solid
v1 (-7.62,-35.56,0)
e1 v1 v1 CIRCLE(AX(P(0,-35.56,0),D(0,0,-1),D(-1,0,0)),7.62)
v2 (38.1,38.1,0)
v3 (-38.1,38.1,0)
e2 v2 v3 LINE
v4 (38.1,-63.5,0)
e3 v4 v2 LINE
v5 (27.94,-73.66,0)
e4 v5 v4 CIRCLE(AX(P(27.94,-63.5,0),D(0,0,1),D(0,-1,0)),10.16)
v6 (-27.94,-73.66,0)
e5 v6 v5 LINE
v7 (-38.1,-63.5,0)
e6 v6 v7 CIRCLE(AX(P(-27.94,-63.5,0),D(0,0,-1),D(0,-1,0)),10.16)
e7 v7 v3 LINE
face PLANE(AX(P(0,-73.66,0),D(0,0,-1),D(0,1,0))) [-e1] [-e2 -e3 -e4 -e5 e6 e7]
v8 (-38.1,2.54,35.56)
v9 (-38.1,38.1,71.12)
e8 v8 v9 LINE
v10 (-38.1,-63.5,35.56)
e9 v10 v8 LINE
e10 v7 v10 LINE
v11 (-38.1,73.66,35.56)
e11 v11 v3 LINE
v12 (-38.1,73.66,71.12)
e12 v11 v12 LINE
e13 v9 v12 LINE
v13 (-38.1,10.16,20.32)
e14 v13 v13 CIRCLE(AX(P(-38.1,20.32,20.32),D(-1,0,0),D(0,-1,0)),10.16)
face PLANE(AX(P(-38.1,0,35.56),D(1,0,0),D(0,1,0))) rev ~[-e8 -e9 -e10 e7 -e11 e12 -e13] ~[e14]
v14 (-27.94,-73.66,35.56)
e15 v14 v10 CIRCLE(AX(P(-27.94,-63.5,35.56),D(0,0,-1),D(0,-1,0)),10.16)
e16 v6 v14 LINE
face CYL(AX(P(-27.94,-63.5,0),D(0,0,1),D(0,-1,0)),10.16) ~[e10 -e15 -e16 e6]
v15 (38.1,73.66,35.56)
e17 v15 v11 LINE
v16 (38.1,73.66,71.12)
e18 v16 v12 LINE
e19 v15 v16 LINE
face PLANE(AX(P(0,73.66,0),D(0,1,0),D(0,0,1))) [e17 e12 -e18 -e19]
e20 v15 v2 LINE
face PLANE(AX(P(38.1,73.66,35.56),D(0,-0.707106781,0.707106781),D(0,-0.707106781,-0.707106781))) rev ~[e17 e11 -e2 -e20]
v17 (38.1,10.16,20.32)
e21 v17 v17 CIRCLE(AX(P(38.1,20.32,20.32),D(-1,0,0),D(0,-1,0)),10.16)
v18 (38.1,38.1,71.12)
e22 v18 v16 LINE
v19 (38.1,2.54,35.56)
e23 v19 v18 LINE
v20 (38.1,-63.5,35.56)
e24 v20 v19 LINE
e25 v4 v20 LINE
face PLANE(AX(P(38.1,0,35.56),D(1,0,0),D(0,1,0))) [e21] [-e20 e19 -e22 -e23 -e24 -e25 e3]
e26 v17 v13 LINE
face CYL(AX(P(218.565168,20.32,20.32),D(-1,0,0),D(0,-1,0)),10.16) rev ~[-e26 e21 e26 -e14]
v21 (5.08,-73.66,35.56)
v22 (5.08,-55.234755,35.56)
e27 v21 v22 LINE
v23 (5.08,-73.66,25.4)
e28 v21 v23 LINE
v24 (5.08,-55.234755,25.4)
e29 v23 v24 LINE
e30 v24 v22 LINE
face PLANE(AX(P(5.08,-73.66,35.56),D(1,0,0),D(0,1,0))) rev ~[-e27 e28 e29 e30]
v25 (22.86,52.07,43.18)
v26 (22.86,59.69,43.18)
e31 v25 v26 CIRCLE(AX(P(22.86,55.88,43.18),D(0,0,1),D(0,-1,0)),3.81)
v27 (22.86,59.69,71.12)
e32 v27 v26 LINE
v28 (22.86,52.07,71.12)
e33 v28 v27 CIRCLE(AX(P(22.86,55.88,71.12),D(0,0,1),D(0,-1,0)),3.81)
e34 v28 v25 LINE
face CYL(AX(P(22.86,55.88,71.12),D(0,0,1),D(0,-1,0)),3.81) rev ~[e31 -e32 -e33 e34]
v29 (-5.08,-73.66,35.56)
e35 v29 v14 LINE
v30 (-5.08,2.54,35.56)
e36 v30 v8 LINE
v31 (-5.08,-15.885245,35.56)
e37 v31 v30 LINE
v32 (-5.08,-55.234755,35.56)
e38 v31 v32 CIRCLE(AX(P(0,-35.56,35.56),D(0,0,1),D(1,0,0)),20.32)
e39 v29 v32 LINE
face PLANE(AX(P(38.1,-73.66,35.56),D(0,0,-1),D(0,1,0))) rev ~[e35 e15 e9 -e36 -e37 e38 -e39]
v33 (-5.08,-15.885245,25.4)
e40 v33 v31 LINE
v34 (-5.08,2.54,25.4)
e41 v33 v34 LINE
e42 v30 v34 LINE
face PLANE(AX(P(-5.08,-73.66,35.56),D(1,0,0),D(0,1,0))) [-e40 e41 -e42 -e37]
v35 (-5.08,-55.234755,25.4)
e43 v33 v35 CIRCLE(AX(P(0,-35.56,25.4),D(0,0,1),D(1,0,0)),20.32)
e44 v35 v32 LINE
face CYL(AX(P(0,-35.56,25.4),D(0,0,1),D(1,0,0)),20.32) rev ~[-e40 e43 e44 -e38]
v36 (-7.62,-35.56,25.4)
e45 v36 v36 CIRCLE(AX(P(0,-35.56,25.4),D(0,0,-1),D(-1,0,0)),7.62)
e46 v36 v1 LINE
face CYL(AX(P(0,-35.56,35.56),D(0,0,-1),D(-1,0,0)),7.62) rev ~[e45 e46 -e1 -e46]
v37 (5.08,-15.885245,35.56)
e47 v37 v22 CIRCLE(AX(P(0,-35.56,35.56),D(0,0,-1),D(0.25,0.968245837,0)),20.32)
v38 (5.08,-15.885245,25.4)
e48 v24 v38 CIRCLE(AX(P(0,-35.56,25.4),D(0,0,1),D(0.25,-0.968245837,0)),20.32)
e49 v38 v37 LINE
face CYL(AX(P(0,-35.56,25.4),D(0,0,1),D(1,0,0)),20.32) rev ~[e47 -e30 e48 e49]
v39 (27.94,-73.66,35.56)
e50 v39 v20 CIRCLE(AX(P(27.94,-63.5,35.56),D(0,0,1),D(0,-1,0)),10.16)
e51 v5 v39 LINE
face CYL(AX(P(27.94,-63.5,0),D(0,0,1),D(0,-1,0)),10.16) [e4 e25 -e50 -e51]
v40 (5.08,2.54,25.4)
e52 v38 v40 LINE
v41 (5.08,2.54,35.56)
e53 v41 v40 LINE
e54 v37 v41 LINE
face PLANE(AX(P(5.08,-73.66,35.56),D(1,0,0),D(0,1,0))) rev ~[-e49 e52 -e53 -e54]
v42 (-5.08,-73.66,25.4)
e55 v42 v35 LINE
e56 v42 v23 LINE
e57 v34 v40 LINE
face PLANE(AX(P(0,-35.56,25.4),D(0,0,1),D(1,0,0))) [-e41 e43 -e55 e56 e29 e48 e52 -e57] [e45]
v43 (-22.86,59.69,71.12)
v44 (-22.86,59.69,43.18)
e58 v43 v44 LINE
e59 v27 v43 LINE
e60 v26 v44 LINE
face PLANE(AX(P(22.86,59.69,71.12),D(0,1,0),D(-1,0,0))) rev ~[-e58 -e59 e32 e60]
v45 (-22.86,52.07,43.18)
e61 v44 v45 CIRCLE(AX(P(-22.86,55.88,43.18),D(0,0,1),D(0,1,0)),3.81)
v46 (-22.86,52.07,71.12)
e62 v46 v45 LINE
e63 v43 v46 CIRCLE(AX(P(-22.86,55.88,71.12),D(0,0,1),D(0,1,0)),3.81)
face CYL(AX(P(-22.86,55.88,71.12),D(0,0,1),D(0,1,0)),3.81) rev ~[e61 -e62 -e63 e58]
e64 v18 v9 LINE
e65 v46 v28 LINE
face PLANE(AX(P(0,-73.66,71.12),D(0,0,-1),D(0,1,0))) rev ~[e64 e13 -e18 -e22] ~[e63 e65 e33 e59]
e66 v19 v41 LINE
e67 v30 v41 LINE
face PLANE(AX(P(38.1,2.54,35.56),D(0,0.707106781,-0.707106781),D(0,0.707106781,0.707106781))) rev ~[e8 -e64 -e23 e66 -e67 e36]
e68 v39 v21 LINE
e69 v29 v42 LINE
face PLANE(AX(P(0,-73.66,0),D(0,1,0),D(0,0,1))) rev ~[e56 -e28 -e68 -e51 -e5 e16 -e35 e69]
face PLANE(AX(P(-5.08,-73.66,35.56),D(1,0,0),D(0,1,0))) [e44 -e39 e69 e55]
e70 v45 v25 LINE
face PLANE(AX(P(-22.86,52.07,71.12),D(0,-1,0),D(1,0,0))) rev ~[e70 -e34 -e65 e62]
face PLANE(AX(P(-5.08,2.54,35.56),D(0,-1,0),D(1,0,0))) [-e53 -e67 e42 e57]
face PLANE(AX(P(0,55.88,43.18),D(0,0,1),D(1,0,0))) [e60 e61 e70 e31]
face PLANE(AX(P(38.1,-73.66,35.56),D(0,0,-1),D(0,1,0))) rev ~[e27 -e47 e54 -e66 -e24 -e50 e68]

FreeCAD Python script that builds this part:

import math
import FreeCAD as App
import Part
import Sketcher
Q = App.Units.Quantity


def edges_at(feature, points):
    """Names of the edges that pass closest to the given points."""
    edges = feature.Shape.Edges
    near = lambda p: min(range(len(edges)), key=lambda i: edges[i].distToShape(Part.Vertex(*p))[0])
    return sorted({f"Edge{near(p) + 1}" for p in points})


def add_polygon(sketch, points):
    """Adds a closed chain of lines whose ends are joined by coincident constraints."""
    first, n = sketch.GeometryCount, len(points)
    for a, b in zip(points, points[1:] + points[:1]):
        sketch.addGeometry(Part.LineSegment(App.Vector(*a, 0), App.Vector(*b, 0)), False)
    for i in range(n):
        sketch.addConstraint(Sketcher.Constraint("Coincident", first + i, 2, first + (i + 1) % n, 1))

doc = App.newDocument("Part")
body = doc.addObject("PartDesign::Body", "Body")

# Sketch on YZ plane
sketch1 = doc.addObject("Sketcher::SketchObject", "Sketch")
body.addObject(sketch1)
sketch1.AttachmentSupport = (doc.YZ_Plane, [""])
sketch1.MapMode = "FlatFace"
add_polygon(sketch1, [(-74, 71), (-74, 0), (74, 0), (74, 71)])  # lines 0-3
sketch1.addConstraint([
    Sketcher.Constraint("Vertical", 0),
    Sketcher.Constraint("Horizontal", 1),
    Sketcher.Constraint("Vertical", 2),
    Sketcher.Constraint("Horizontal", 3),
    Sketcher.Constraint("Symmetric", 0, 2, 1, 2, -1, 1),
    Sketcher.Constraint("DistanceX", 1, 1, 1, 2, Q("5.8 in")),
    Sketcher.Constraint("DistanceY", 0, 2, 0, 1, Q("2.8 in")),
])
pad1 = doc.addObject("PartDesign::Pad", "Pad")
body.addObject(pad1)
pad1.Profile = sketch1
pad1.Length = Q("3 in")
pad1.Midplane = True

# Sketch on YZ plane
sketch2 = doc.addObject("Sketcher::SketchObject", "Sketch001")
body.addObject(sketch2)
sketch2.AttachmentSupport = (doc.YZ_Plane, [""])
sketch2.MapMode = "FlatFace"
sketch2.AttachmentOffset = App.Placement(App.Vector(0, 0, 1.5 * 25.4), App.Rotation())
add_polygon(sketch2, [(3, 36), (38, 71), (-74, 71), (-74, 36)])  # lines 0-3
add_polygon(sketch2, [(74, 0), (74, 36), (38, 0)])  # lines 4-6
sketch2.addConstraint([
    Sketcher.Constraint("Horizontal", 1),
    Sketcher.Constraint("Vertical", 2),
    Sketcher.Constraint("Horizontal", 3),
    Sketcher.Constraint("Vertical", 4),
    Sketcher.Constraint("Horizontal", 6),
    Sketcher.Constraint("Symmetric", 2, 2, 4, 2, -2),
    Sketcher.Constraint("PointOnObject", 5, 2, -1),
    Sketcher.Constraint("Parallel", 0, 5),
    Sketcher.Constraint("Vertical", 0, 2, 5, 2),
    Sketcher.Constraint("Equal", 6, 2),
    Sketcher.Constraint("Equal", 2, 4),
    Sketcher.Constraint("DistanceX", 3, 1, 3, 2, Q("3 in")),
    Sketcher.Constraint("DistanceX", 1, 2, 1, 1, Q("4.4 in")),
])
pocket1 = doc.addObject("PartDesign::Pocket", "Pocket")
body.addObject(pocket1)
pocket1.Profile = sketch2
pocket1.Type = "ThroughAll"

# Sketch on XY plane
sketch3 = doc.addObject("Sketcher::SketchObject", "Sketch002")
body.addObject(sketch3)
sketch3.AttachmentSupport = (doc.XY_Plane, [""])
sketch3.MapMode = "FlatFace"
sketch3.AttachmentOffset = App.Placement(App.Vector(0, 0, 2.8 * 25.4), App.Rotation())
sketch3.addGeometry([
    Part.ArcOfCircle(Part.Circle(App.Vector(-22.9, 55.9, 0), App.Vector(0, 0, 1), 3.8), math.radians(90), math.radians(270)),
    Part.LineSegment(App.Vector(-22.9, 52.1, 0), App.Vector(22.9, 52.1, 0)),
    Part.ArcOfCircle(Part.Circle(App.Vector(22.9, 55.9, 0), App.Vector(0, 0, 1), 3.8), math.radians(-90), math.radians(90)),
    Part.LineSegment(App.Vector(22.9, 59.7, 0), App.Vector(-22.9, 59.7, 0)),
], False)
sketch3.addConstraint([
    Sketcher.Constraint("Tangent", 0, 2, 1, 1),
    Sketcher.Constraint("Tangent", 1, 2, 2, 1),
    Sketcher.Constraint("Tangent", 2, 2, 3, 1),
    Sketcher.Constraint("Tangent", 3, 2, 0, 1),
    Sketcher.Constraint("Horizontal", 1),
    Sketcher.Constraint("Horizontal", 3),
    Sketcher.Constraint("Radius", 0, Q("0.15 in")),
    Sketcher.Constraint("DistanceX", 1, 1, 1, 2, Q("1.8 in")),
    Sketcher.Constraint("DistanceX", 0, 3, -1, 1, Q("0.9 in")),
    Sketcher.Constraint("DistanceY", -1, 1, 0, 3, Q("2.2 in")),
])
pocket2 = doc.addObject("PartDesign::Pocket", "Pocket001")
body.addObject(pocket2)
pocket2.Profile = sketch3
pocket2.Length = Q("1.1 in")
doc.recompute()

fillet = doc.addObject("PartDesign::Fillet", "Fillet")
body.addObject(fillet)
fillet.Base = (pocket2, edges_at(pocket2, [(38.1, -73.66, 17.78), (-38.1, -73.66, 17.78)]))
fillet.Radius = Q("0.4 in")

# Sketch on XY plane
sketch4 = doc.addObject("Sketcher::SketchObject", "Sketch003")
body.addObject(sketch4)
sketch4.AttachmentSupport = (doc.XY_Plane, [""])
sketch4.MapMode = "FlatFace"
sketch4.AttachmentOffset = App.Placement(App.Vector(0, 0, 1.4 * 25.4), App.Rotation())
sketch4.addGeometry(Part.Circle(App.Vector(0, -36, 0), App.Vector(0, 0, 1), 8), False)
sketch4.addConstraint([
    Sketcher.Constraint("PointOnObject", 0, 3, -2),
    Sketcher.Constraint("Diameter", 0, Q("0.6 in")),
    Sketcher.Constraint("DistanceY", 0, 3, -1, 1, Q("1.4 in")),
])
doc.recompute()
hole = doc.addObject("PartDesign::Hole", "Hole")
body.addObject(hole)
hole.Profile = sketch4
hole.ThreadType = "None"
hole.Diameter = Q("0.6 in")
hole.DepthType = "ThroughAll"
hole.HoleCutType = "Counterbore"
hole.HoleCutDiameter = Q("1.6 in")
hole.HoleCutDepth = Q("0.4 in")

# Sketch on XY plane
sketch5 = doc.addObject("Sketcher::SketchObject", "Sketch004")
body.addObject(sketch5)
sketch5.AttachmentSupport = (doc.XY_Plane, [""])
sketch5.MapMode = "FlatFace"
sketch5.AttachmentOffset = App.Placement(App.Vector(0, 0, 1.4 * 25.4), App.Rotation())
add_polygon(sketch5, [(-5, 3), (-5, -74), (5, -74), (5, 3)])  # lines 0-3
sketch5.addConstraint([
    Sketcher.Constraint("Vertical", 0),
    Sketcher.Constraint("Horizontal", 1),
    Sketcher.Constraint("Vertical", 2),
    Sketcher.Constraint("Horizontal", 3),
    Sketcher.Constraint("DistanceY", 0, 2, 0, 1, Q("3 in")),
    Sketcher.Constraint("DistanceX", 1, 1, 1, 2, Q("0.4 in")),
    Sketcher.Constraint("DistanceX", 0, 2, -1, 1, Q("0.2 in")),
    Sketcher.Constraint("DistanceY", 0, 2, -1, 1, Q("2.9 in")),
])
pocket3 = doc.addObject("PartDesign::Pocket", "Pocket002")
body.addObject(pocket3)
pocket3.Profile = sketch5
pocket3.Length = Q("0.4 in")

# Sketch on YZ plane
sketch6 = doc.addObject("Sketcher::SketchObject", "Sketch005")
body.addObject(sketch6)
sketch6.AttachmentSupport = (doc.YZ_Plane, [""])
sketch6.MapMode = "FlatFace"
sketch6.AttachmentOffset = App.Placement(App.Vector(0, 0, 1.5 * 25.4), App.Rotation())
sketch6.addGeometry(Part.Circle(App.Vector(20, 20, 0), App.Vector(0, 0, 1), 10), False)
sketch6.addConstraint([
    Sketcher.Constraint("Diameter", 0, Q("0.8 in")),
    Sketcher.Constraint("DistanceX", -1, 1, 0, 3, Q("0.8 in")),
    Sketcher.Constraint("DistanceY", -1, 1, 0, 3, Q("0.8 in")),
])
doc.recompute()
hole2 = doc.addObject("PartDesign::Hole", "Hole001")
body.addObject(hole2)
hole2.Profile = sketch6
hole2.ThreadType = "None"
hole2.Diameter = Q("0.8 in")
hole2.DepthType = "ThroughAll"

doc.recompute()
